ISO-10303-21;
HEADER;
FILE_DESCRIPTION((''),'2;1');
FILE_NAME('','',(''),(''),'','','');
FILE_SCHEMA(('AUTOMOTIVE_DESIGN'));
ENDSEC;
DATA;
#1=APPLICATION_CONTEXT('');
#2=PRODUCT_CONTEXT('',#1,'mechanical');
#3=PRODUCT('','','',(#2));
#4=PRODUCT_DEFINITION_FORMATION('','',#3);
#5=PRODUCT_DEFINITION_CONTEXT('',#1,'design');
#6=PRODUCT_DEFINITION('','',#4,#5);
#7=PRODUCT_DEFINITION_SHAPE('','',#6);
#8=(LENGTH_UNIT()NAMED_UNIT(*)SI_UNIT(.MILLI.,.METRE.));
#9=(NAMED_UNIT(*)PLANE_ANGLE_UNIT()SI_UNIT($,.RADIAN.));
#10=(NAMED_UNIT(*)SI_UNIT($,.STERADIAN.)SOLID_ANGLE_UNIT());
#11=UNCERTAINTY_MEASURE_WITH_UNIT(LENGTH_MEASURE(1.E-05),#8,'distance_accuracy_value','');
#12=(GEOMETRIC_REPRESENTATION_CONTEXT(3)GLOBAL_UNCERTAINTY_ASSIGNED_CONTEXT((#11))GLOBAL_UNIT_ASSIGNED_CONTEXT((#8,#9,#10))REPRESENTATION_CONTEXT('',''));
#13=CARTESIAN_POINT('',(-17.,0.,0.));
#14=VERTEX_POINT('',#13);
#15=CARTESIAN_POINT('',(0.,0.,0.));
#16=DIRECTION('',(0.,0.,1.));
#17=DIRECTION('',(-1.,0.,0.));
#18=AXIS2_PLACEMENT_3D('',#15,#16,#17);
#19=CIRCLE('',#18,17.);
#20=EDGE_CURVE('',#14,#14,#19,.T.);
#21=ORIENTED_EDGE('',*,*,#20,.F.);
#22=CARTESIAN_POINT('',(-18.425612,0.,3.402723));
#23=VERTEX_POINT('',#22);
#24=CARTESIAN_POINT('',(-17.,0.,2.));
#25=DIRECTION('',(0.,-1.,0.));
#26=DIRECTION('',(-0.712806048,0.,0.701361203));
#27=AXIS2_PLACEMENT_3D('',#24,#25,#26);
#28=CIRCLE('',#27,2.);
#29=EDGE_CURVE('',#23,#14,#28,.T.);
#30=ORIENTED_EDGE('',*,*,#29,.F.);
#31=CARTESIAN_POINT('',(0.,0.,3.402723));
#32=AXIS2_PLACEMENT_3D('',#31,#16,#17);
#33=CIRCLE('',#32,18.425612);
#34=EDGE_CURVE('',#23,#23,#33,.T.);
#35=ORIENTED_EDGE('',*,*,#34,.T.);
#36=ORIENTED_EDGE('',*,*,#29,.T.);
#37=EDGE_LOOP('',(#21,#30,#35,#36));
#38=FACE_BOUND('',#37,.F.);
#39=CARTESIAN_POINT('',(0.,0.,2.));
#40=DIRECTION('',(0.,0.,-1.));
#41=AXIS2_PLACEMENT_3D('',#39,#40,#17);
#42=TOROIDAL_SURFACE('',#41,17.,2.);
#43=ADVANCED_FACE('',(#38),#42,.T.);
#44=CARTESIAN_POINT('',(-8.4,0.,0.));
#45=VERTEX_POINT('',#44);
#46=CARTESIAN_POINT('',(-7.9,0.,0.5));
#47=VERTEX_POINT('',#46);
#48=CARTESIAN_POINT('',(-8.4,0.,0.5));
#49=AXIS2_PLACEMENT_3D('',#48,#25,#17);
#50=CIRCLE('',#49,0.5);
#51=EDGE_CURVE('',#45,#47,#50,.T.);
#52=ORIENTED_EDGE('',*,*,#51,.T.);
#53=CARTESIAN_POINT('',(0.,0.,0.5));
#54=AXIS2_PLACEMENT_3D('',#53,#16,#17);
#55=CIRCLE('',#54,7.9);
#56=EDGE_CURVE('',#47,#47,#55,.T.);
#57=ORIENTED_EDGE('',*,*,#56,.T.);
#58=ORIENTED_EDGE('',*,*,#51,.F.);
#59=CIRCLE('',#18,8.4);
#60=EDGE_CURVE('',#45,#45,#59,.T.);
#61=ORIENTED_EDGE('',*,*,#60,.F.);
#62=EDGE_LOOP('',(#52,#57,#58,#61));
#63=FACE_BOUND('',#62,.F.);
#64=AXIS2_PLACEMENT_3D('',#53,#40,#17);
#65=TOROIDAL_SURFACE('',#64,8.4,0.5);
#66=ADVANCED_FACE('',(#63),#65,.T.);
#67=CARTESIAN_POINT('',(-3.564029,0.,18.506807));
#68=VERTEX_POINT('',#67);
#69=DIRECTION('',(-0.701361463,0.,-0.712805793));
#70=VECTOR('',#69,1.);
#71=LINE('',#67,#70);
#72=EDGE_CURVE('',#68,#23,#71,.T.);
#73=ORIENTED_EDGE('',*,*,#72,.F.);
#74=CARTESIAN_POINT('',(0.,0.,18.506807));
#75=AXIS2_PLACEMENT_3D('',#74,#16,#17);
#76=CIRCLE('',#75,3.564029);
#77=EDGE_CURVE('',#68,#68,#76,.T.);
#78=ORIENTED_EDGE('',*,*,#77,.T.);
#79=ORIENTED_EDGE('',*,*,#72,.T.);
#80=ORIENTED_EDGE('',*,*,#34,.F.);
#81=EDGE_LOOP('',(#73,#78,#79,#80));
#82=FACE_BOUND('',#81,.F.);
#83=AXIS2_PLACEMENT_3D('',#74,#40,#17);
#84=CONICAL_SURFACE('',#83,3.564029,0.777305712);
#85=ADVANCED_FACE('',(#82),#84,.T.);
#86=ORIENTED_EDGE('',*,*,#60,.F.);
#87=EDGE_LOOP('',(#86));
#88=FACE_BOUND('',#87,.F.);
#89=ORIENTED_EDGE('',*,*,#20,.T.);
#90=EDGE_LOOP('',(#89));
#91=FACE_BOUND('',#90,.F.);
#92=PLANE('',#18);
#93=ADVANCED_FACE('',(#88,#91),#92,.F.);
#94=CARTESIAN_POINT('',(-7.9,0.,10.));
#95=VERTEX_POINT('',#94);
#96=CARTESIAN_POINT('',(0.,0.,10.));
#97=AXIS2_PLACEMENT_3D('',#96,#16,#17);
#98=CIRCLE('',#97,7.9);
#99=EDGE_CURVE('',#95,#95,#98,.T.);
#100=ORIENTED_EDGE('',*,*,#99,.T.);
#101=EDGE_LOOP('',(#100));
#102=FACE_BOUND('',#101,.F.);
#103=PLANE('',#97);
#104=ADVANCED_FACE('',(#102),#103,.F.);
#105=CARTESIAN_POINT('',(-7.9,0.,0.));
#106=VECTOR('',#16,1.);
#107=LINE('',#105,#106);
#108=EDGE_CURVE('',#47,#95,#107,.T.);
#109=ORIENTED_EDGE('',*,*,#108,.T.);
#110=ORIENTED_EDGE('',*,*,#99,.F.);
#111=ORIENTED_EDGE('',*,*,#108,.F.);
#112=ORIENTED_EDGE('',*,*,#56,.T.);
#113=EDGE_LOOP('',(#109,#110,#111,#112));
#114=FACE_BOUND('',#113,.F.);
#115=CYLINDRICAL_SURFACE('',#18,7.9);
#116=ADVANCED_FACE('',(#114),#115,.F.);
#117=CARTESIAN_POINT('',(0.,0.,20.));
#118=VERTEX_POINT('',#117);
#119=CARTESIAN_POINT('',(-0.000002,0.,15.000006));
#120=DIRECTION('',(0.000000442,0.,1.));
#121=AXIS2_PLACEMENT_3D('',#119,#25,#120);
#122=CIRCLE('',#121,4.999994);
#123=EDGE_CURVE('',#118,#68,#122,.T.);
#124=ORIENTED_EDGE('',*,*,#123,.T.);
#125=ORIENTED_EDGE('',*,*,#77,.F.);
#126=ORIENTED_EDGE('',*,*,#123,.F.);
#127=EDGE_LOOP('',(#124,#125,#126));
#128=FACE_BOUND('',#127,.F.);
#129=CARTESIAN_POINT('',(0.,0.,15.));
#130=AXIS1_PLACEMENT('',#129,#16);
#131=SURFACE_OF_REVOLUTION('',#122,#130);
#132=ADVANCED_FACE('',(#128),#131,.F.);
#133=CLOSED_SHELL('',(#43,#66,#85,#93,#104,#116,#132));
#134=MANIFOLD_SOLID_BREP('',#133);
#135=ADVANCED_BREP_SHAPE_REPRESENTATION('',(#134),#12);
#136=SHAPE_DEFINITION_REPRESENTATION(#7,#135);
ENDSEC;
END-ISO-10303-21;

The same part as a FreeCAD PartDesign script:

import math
import FreeCAD as App
import Part
import Sketcher
from FreeCAD import Vector


def edges_at(feature, points):
    """Names of the edges that pass closest to the given points."""
    edges = feature.Shape.Edges
    near = lambda p: min(range(len(edges)), key=lambda i: edges[i].distToShape(Part.Vertex(*p))[0])
    return sorted({f"Edge{near(p) + 1}" for p in points})

doc = App.newDocument("Part")
body = doc.addObject("PartDesign::Body", "Body")

# Sketch on XZ plane
sketch1 = body.newObject("Sketcher::SketchObject", "Sketch")
sketch1.AttachmentSupport = (doc.getObject("XZ_Plane"), [""])
sketch1.MapMode = "FlatFace"
sketch1.addGeometry(Part.LineSegment(Vector(-7.9, 10, 0), Vector(0, 10, 0)), False)
sketch1.addGeometry(Part.LineSegment(Vector(0, 10, 0), Vector(0, 20, 0)), False)
sketch1.addGeometry(Part.ArcOfCircle(Part.Circle(Vector(0, 15, 0), Vector(0, 0, 1), 5), math.radians(90), math.radians(135)), False)
sketch1.addGeometry(Part.LineSegment(Vector(-3.6, 18.5, 0), Vector(-18.4, 3.4, 0)), False)
sketch1.addGeometry(Part.ArcOfCircle(Part.Circle(Vector(-17, 2, 0), Vector(0, 0, 1), 2), math.radians(135), math.radians(270)), False)
sketch1.addGeometry(Part.LineSegment(Vector(-17, 0, 0), Vector(-7.9, 0, 0)), False)
sketch1.addGeometry(Part.LineSegment(Vector(-7.9, 0, 0), Vector(-7.9, 10, 0)), False)
sketch1.addConstraint(Sketcher.Constraint("Coincident", 0, 2, 1, 1))
sketch1.addConstraint(Sketcher.Constraint("Coincident", 1, 2, 2, 1))
sketch1.addConstraint(Sketcher.Constraint("Tangent", 2, 2, 3, 1))
sketch1.addConstraint(Sketcher.Constraint("Tangent", 3, 2, 4, 1))
sketch1.addConstraint(Sketcher.Constraint("Tangent", 4, 2, 5, 1))
sketch1.addConstraint(Sketcher.Constraint("Coincident", 5, 2, 6, 1))
sketch1.addConstraint(Sketcher.Constraint("Coincident", 6, 2, 0, 1))
sketch1.addConstraint(Sketcher.Constraint("Horizontal", 0))
sketch1.addConstraint(Sketcher.Constraint("Vertical", 1))
sketch1.addConstraint(Sketcher.Constraint("Horizontal", 5))
sketch1.addConstraint(Sketcher.Constraint("Vertical", 6))
sketch1.addConstraint(Sketcher.Constraint("PointOnObject", 0, 2, -2))
sketch1.addConstraint(Sketcher.Constraint("PointOnObject", 4, 2, -1))
sketch1.addConstraint(Sketcher.Constraint("Equal", 1, 6))
sketch1.addConstraint(Sketcher.Constraint("Radius", 4, 2.0))
sketch1.addConstraint(Sketcher.Constraint("DistanceY", 1, 1, 1, 2, 10.0))
sketch1.addConstraint(Sketcher.Constraint("DistanceX", 0, 1, 0, 2, 7.9))
sketch1.addConstraint(Sketcher.Constraint("DistanceX", 5, 1, 5, 2, 9.1))
sketch1.addConstraint(Sketcher.Constraint("Radius", 2, 4.999994))
sketch1.addConstraint(Sketcher.Constraint("DistanceY", 2, 3, 2, 2, 3.506801))
revolution = body.newObject("PartDesign::Revolution", "Revolution")
revolution.Profile = sketch1
revolution.ReferenceAxis = (sketch1, ["V_Axis"])
revolution.Angle = 360
doc.recompute()

fillet = body.newObject("PartDesign::Fillet", "Fillet")
fillet.Base = (revolution, edges_at(revolution, [(7.9, 0, 0)]))
fillet.Radius = 0.5

doc.recompute()
